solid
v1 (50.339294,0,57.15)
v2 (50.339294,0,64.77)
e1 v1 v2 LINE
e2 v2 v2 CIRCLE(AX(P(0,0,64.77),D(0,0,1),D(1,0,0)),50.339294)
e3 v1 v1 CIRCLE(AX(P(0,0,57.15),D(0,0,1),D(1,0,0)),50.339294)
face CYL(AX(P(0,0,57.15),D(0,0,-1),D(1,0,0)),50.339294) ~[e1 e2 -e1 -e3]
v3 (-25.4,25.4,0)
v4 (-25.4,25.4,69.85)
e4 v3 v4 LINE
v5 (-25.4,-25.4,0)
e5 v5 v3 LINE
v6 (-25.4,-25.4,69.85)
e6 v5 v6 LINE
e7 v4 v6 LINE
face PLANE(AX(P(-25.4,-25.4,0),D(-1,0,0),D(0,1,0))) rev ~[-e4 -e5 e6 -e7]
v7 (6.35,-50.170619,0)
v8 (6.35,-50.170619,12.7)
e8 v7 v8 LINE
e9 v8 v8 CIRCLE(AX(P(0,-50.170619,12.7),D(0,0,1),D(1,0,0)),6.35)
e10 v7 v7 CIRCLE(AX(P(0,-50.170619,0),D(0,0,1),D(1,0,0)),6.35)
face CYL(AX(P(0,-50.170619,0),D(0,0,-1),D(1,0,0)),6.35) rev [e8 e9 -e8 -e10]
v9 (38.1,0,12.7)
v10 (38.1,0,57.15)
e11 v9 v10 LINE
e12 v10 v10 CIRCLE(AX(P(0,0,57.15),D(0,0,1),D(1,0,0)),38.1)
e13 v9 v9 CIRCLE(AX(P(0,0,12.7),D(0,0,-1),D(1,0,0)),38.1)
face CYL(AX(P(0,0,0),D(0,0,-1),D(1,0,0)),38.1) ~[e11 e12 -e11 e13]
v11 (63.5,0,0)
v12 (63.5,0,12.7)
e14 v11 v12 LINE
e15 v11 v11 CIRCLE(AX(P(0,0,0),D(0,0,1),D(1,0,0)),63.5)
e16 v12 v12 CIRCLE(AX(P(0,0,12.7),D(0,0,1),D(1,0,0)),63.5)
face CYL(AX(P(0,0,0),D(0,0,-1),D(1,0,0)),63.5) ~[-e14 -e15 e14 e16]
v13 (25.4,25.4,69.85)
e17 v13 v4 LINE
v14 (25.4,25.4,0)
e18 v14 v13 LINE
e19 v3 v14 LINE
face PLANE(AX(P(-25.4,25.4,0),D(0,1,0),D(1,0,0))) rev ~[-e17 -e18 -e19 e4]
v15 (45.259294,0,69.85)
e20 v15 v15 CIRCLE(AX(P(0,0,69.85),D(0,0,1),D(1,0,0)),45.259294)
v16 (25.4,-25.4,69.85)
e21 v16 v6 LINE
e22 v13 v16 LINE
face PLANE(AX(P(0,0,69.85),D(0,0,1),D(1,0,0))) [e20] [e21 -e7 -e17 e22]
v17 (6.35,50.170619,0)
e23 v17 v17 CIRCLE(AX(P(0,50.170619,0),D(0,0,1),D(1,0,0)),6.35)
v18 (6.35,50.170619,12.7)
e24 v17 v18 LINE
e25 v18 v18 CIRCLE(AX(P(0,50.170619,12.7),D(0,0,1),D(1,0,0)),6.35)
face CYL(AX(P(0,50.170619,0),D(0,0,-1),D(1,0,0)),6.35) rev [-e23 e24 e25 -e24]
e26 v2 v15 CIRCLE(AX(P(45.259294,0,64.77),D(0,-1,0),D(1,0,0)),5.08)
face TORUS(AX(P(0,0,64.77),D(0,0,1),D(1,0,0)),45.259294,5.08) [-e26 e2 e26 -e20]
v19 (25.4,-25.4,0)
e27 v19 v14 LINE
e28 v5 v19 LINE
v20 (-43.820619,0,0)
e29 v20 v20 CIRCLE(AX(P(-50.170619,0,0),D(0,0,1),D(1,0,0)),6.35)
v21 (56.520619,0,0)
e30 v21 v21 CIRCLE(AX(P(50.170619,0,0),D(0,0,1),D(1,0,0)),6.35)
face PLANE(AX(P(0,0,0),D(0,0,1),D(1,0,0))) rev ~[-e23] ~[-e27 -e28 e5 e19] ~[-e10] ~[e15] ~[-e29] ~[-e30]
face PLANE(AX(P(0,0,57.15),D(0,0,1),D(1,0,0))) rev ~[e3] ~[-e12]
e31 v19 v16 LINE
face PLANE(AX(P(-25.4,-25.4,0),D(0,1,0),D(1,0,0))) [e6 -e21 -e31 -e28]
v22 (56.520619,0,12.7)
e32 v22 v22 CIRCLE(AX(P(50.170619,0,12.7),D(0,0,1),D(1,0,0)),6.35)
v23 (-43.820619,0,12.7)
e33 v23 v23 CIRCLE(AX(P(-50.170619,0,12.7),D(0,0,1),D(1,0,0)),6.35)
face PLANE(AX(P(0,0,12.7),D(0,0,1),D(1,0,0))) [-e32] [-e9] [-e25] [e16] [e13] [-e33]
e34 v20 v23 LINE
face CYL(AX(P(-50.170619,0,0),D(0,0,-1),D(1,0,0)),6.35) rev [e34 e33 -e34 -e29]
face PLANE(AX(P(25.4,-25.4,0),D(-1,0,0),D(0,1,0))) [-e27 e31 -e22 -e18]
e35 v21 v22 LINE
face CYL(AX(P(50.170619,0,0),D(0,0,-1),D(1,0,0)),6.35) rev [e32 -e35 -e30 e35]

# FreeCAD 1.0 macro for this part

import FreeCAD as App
import Part
import Sketcher

V = App.Vector
Q = App.Units.Quantity


def edges_at(feature, points):
    """Names of the edges that pass closest to the given points."""
    edges = feature.Shape.Edges
    near = lambda p: min(range(len(edges)), key=lambda i: edges[i].distToShape(Part.Vertex(*p))[0])
    return sorted({f"Edge{near(p) + 1}" for p in points})


def add_polygon(sketch, points):
    """Adds a closed chain of lines whose ends are joined by coincident constraints."""
    first, n = sketch.GeometryCount, len(points)
    for a, b in zip(points, points[1:] + points[:1]):
        sketch.addGeometry(Part.LineSegment(App.Vector(*a, 0), App.Vector(*b, 0)), False)
    for i in range(n):
        sketch.addConstraint(Sketcher.Constraint("Coincident", first + i, 2, first + (i + 1) % n, 1))

doc = App.newDocument("Part")
params = doc.addObject("Spreadsheet::Sheet", "Params")
for row, (alias, value) in enumerate([
    ("sketch1_diameter", "5 in"),
    ("pad1_length", "0.5 in"),
    ("sketch2_diameter", "3 in"),
    ("pad2_length", "2.25 in"),
    ("pad3_length", "0.5 in"),
    ("fillet_radius", "0.2 in"),
    ("sketch4_diameter", "0.5 in"),
    ("pocket1_length", "0.5 in"),
    ("sketch5_width", "2 in"),
    ("pocket2_length", "5 in"),
], start=1):
    params.set(f"A{row}", alias)
    params.set(f"B{row}", "=" + value)
    params.setAlias(f"B{row}", alias)

body = doc.addObject("PartDesign::Body", "Body")

sketch1 = body.newObject("Sketcher::SketchObject", "Sketch")
sketch1.AttachmentSupport = (doc.getObject("XY_Plane"), [""])
sketch1.MapMode = "FlatFace"
sketch1.addGeometry(Part.Circle(V(0, 0, 0), V(0, 0, 1), 64), False)
sketch1.addConstraint(Sketcher.Constraint("Coincident", 0, 3, -1, 1))
sketch1.addConstraint(Sketcher.Constraint("Diameter", 0, Q("5 in")))
sketch1.setExpression("Constraints[1]", "Params.sketch1_diameter")
pad1 = body.newObject("PartDesign::Pad", "Pad")
pad1.Profile = sketch1
pad1.setExpression("Length", "Params.pad1_length")

sketch2 = body.newObject("Sketcher::SketchObject", "Sketch001")
sketch2.AttachmentSupport = (doc.getObject("XY_Plane"), [""])
sketch2.MapMode = "FlatFace"
sketch2.addGeometry(Part.Circle(V(0, 0, 0), V(0, 0, 1), 38), False)
sketch2.addConstraint(Sketcher.Constraint("Coincident", 0, 3, -1, 1))
sketch2.addConstraint(Sketcher.Constraint("Diameter", 0, Q("3 in")))
sketch2.setExpression("Constraints[1]", "Params.sketch2_diameter")
pad2 = body.newObject("PartDesign::Pad", "Pad001")
pad2.Profile = sketch2
pad2.setExpression("Length", "Params.pad2_length")

sketch3 = body.newObject("Sketcher::SketchObject", "Sketch002")
sketch3.AttachmentSupport = (doc.getObject("XY_Plane"), [""])
sketch3.MapMode = "FlatFace"
sketch3.AttachmentOffset = App.Placement(V(0, 0, 2.25 * 25.4), App.Rotation())
sketch3.addGeometry(Part.Circle(V(0, 0, 0), V(0, 0, 1), 50), False)
sketch3.addConstraint(Sketcher.Constraint("Coincident", 0, 3, -1, 1))
sketch3.addConstraint(Sketcher.Constraint("Diameter", 0, Q("100.678588 mm")))
pad3 = body.newObject("PartDesign::Pad", "Pad002")
pad3.Profile = sketch3
pad3.setExpression("Length", "Params.pad3_length")
doc.recompute()

fillet = body.newObject("PartDesign::Fillet", "Fillet")
fillet.Base = (pad3, edges_at(pad3, [(-50.339, 0, 69.85)]))
fillet.setExpression("Radius", "Params.fillet_radius")

sketch4 = body.newObject("Sketcher::SketchObject", "Sketch003")
sketch4.AttachmentSupport = (doc.getObject("XY_Plane"), [""])
sketch4.MapMode = "FlatFace"
sketch4.addGeometry(Part.Circle(V(0, 50, 0), V(0, 0, 1), 6), False)
sketch4.addGeometry(Part.Circle(V(-50, 0, 0), V(0, 0, 1), 6), False)
sketch4.addGeometry(Part.Circle(V(0, -50, 0), V(0, 0, 1), 6), False)
sketch4.addGeometry(Part.Circle(V(50, 0, 0), V(0, 0, 1), 6), False)
sketch4.addConstraint(Sketcher.Constraint("Equal", 0, 1))
sketch4.addConstraint(Sketcher.Constraint("Equal", 1, 2))
sketch4.addConstraint(Sketcher.Constraint("Equal", 2, 3))
sketch4.addConstraint(Sketcher.Constraint("Symmetric", 0, 3, 2, 3, -1, 1))
sketch4.addConstraint(Sketcher.Constraint("Symmetric", 1, 3, 3, 3, -1, 1))
sketch4.addConstraint(Sketcher.Constraint("PointOnObject", 0, 3, -2))
sketch4.addConstraint(Sketcher.Constraint("PointOnObject", 1, 3, -1))
sketch4.addConstraint(Sketcher.Constraint("Diameter", 0, Q("0.5 in")))
sketch4.addConstraint(Sketcher.Constraint("DistanceY", -1, 1, 0, 3, Q("50.170619 mm")))
sketch4.addConstraint(Sketcher.Constraint("DistanceX", 1, 3, -1, 1, Q("50.170619 mm")))
sketch4.setExpression("Constraints[7]", "Params.sketch4_diameter")
pocket1 = body.newObject("PartDesign::Pocket", "Pocket")
pocket1.Profile = sketch4
pocket1.setExpression("Length", "Params.pocket1_length")
pocket1.Reversed = True

sketch5 = body.newObject("Sketcher::SketchObject", "Sketch004")
sketch5.AttachmentSupport = (doc.getObject("XY_Plane"), [""])
sketch5.MapMode = "FlatFace"
add_polygon(sketch5, [(-25, 25), (-25, -25), (25, -25), (25, 25)])
sketch5.addConstraint(Sketcher.Constraint("Vertical", 0))
sketch5.addConstraint(Sketcher.Constraint("Horizontal", 1))
sketch5.addConstraint(Sketcher.Constraint("Vertical", 2))
sketch5.addConstraint(Sketcher.Constraint("Horizontal", 3))
sketch5.addConstraint(Sketcher.Constraint("Symmetric", 0, 2, 2, 2, -1, 1))
sketch5.addConstraint(Sketcher.Constraint("Equal", 3, 0))
sketch5.addConstraint(Sketcher.Constraint("DistanceX", 1, 1, 1, 2, Q("2 in")))
sketch5.setExpression("Constraints[10]", "Params.sketch5_width")
pocket2 = body.newObject("PartDesign::Pocket", "Pocket001")
pocket2.Profile = sketch5
pocket2.setExpression("Length", "Params.pocket2_length")
pocket2.Reversed = True

doc.recompute()
